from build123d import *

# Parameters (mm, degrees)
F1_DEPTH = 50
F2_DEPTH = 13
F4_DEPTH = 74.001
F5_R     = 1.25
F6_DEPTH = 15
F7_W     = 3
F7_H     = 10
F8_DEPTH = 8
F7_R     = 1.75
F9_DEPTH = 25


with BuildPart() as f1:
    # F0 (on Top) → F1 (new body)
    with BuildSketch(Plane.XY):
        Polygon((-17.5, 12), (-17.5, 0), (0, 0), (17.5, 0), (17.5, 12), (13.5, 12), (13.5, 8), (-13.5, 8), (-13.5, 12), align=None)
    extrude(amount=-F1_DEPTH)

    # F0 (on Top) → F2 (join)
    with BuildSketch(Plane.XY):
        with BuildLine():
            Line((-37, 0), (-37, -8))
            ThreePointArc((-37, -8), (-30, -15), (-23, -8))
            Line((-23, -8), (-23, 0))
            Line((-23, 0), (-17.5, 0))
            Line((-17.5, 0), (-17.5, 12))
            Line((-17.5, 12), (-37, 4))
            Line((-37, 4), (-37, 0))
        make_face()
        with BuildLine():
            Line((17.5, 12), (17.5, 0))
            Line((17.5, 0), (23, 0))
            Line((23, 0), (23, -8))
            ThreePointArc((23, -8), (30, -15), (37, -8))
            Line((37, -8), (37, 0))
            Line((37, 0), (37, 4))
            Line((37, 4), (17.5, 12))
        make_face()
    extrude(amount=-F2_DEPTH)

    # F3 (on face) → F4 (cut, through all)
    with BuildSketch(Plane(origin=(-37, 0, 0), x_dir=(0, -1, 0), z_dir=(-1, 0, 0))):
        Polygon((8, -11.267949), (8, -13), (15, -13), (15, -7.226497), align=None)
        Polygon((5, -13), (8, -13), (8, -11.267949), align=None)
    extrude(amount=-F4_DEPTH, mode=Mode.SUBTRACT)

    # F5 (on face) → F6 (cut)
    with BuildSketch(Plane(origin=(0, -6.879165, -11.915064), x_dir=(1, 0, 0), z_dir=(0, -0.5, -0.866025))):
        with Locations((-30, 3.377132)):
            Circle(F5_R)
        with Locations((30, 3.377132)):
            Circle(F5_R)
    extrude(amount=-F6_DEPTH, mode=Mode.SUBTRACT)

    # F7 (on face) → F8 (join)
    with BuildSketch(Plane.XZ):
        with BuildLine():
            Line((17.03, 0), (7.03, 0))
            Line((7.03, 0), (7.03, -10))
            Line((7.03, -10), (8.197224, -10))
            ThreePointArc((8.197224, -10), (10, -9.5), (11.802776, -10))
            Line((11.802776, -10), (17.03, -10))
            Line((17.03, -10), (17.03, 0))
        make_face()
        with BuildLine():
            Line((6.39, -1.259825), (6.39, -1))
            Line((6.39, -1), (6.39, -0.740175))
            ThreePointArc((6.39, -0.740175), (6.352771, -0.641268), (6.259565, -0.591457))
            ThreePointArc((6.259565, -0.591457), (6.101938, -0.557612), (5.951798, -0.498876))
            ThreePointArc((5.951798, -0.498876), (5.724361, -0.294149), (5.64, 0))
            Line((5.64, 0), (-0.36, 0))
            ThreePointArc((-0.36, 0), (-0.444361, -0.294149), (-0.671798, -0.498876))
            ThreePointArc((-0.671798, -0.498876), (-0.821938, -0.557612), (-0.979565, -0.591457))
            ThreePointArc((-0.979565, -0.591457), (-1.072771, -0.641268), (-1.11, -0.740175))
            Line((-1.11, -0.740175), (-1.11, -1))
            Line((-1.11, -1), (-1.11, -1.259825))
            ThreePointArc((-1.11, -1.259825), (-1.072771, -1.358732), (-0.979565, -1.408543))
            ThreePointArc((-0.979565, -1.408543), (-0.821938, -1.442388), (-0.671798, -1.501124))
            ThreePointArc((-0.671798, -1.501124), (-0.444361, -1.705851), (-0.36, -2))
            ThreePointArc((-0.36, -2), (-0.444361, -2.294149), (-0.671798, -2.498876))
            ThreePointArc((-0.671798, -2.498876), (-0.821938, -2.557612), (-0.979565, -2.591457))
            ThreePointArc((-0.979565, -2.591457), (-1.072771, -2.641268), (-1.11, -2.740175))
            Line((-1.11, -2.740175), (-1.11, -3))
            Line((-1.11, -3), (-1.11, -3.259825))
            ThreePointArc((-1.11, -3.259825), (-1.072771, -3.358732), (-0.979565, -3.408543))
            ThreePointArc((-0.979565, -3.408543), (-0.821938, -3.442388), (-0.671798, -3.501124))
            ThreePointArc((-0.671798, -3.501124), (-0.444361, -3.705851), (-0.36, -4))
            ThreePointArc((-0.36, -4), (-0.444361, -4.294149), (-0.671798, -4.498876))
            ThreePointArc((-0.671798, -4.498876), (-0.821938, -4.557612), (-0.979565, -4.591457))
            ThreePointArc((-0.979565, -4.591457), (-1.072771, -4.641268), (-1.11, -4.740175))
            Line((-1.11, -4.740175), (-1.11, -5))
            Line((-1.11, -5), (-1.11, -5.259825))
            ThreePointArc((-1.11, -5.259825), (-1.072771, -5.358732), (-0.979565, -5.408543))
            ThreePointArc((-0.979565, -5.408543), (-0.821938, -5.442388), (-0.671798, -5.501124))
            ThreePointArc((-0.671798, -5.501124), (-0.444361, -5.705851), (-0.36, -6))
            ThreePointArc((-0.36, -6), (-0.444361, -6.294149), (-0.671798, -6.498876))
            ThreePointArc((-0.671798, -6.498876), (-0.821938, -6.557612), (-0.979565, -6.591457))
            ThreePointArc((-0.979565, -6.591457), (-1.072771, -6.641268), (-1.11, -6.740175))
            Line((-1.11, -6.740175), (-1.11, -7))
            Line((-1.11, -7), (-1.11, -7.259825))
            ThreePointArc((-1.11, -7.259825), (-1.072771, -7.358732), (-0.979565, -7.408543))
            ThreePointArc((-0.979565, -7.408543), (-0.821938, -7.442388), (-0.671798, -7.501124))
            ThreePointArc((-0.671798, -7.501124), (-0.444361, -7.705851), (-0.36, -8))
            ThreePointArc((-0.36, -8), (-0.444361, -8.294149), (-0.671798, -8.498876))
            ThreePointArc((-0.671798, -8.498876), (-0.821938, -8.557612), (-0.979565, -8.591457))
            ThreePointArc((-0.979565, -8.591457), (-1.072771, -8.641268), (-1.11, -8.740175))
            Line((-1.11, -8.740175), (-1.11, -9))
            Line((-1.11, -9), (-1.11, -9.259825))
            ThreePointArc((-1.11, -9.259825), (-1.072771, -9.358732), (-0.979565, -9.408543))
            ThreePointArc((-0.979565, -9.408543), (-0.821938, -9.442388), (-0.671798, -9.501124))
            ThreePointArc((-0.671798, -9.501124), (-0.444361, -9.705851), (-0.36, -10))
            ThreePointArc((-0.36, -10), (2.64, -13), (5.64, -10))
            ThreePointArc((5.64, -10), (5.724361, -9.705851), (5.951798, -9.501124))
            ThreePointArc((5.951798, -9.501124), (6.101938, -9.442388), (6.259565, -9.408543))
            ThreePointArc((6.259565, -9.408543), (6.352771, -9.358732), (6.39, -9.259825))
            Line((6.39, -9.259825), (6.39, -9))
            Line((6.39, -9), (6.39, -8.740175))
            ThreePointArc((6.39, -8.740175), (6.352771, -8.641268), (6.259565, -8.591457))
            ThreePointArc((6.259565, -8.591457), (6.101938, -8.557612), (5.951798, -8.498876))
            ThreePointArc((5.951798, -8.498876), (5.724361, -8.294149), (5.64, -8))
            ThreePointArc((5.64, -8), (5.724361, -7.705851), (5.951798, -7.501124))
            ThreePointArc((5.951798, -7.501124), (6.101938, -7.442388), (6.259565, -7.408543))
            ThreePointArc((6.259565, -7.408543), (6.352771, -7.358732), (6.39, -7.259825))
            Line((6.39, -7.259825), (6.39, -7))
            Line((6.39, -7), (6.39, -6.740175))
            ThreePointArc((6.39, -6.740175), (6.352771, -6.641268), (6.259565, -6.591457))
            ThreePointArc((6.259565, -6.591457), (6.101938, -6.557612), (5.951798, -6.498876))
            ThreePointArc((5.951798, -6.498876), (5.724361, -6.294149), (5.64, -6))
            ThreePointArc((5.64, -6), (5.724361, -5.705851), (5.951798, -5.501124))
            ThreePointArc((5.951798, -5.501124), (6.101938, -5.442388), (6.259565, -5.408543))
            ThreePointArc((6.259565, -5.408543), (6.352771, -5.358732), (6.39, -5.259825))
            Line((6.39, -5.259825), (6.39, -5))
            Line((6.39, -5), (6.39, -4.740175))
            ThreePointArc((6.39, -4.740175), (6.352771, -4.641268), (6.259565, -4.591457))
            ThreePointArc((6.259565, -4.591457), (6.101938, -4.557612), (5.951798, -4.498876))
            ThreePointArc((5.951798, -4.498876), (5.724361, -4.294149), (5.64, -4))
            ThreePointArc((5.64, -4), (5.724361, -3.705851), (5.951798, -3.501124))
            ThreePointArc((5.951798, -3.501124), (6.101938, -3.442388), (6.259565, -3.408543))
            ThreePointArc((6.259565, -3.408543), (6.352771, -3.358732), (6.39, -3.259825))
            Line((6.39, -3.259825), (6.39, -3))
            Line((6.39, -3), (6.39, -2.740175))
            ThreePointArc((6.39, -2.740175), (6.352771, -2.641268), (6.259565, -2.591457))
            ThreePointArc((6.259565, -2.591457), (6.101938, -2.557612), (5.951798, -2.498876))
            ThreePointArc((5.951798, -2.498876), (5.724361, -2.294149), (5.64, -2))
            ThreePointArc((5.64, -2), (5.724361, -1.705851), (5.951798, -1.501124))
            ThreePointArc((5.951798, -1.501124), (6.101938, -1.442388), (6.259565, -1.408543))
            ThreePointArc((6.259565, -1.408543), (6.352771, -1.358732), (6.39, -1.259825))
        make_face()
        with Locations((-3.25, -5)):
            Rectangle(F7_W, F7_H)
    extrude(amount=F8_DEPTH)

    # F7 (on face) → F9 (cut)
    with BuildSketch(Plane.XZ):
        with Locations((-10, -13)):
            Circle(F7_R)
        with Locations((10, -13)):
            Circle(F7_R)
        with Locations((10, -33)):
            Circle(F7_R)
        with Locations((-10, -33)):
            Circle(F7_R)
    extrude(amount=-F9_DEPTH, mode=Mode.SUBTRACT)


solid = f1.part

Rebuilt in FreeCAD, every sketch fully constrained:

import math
import FreeCAD as App
import Part
import Sketcher

V = App.Vector
Q = App.Units.Quantity

doc = App.newDocument("Part")
body = doc.addObject("PartDesign::Body", "Body")

# Sketch on XY plane
sketch1 = doc.addObject("Sketcher::SketchObject", "Sketch")
body.addObject(sketch1)
sketch1.AttachmentSupport = (doc.XY_Plane, [""])
sketch1.MapMode = "FlatFace"
sketch1.addGeometry([
    Part.LineSegment(V(-17.5, 12, 0), V(-17.5, 0, 0)),  # 0
    Part.LineSegment(V(-17.5, 0, 0), V(17.5, 0, 0)),  # 1
    Part.LineSegment(V(17.5, 0, 0), V(17.5, 12, 0)),  # 2
    Part.LineSegment(V(17.5, 12, 0), V(13.5, 12, 0)),  # 3
    Part.LineSegment(V(13.5, 12, 0), V(13.5, 8, 0)),  # 4
    Part.LineSegment(V(13.5, 8, 0), V(-13.5, 8, 0)),  # 5
    Part.LineSegment(V(-13.5, 8, 0), V(-13.5, 12, 0)),  # 6
    Part.LineSegment(V(-13.5, 12, 0), V(-17.5, 12, 0)),  # 7
], False)
sketch1.addConstraint([
    Sketcher.Constraint("Coincident", 0, 2, 1, 1),
    Sketcher.Constraint("Coincident", 1, 2, 2, 1),
    Sketcher.Constraint("Coincident", 2, 2, 3, 1),
    Sketcher.Constraint("Coincident", 3, 2, 4, 1),
    Sketcher.Constraint("Coincident", 4, 2, 5, 1),
    Sketcher.Constraint("Coincident", 5, 2, 6, 1),
    Sketcher.Constraint("Coincident", 6, 2, 7, 1),
    Sketcher.Constraint("Coincident", 7, 2, 0, 1),
    Sketcher.Constraint("Vertical", 0),
    Sketcher.Constraint("Horizontal", 1),
    Sketcher.Constraint("Vertical", 2),
    Sketcher.Constraint("Horizontal", 3),
    Sketcher.Constraint("Vertical", 4),
    Sketcher.Constraint("Horizontal", 5),
    Sketcher.Constraint("Vertical", 6),
    Sketcher.Constraint("Horizontal", 7),
    Sketcher.Constraint("Symmetric", 0, 2, 1, 2, -1, 1),
    Sketcher.Constraint("Symmetric", 3, 2, 6, 2, -2),
    Sketcher.Constraint("Equal", 7, 4),
    Sketcher.Constraint("DistanceX", 1, 1, 1, 2, Q("35 mm")),
    Sketcher.Constraint("DistanceX", 3, 2, 3, 1, Q("4 mm")),
    Sketcher.Constraint("DistanceY", 0, 2, 0, 1, Q("12 mm")),
])
pad1 = doc.addObject("PartDesign::Pad", "Pad")
body.addObject(pad1)
pad1.Profile = sketch1
pad1.Length = 50
pad1.Reversed = True

# Sketch on XY plane
sketch2 = doc.addObject("Sketcher::SketchObject", "Sketch001")
body.addObject(sketch2)
sketch2.AttachmentSupport = (doc.XY_Plane, [""])
sketch2.MapMode = "FlatFace"
sketch2.addGeometry([
    Part.ArcOfCircle(Part.Circle(V(-30, -8, 0), V(0, 0, 1), 7), math.radians(180), math.radians(360)),  # 0
    Part.LineSegment(V(-23, -8, 0), V(-23, 0, 0)),  # 1
    Part.LineSegment(V(-23, 0, 0), V(-18, 0, 0)),  # 2
    Part.LineSegment(V(-18, 0, 0), V(-18, 12, 0)),  # 3
    Part.LineSegment(V(-18, 12, 0), V(-37, 4, 0)),  # 4
    Part.LineSegment(V(-37, 4, 0), V(-37, -8, 0)),  # 5
    Part.LineSegment(V(18, 12, 0), V(18, 0, 0)),  # 6
    Part.LineSegment(V(18, 0, 0), V(23, 0, 0)),  # 7
    Part.LineSegment(V(23, 0, 0), V(23, -8, 0)),  # 8
    Part.ArcOfCircle(Part.Circle(V(30, -8, 0), V(0, 0, 1), 7), math.radians(180), math.radians(360)),  # 9
    Part.LineSegment(V(37, -8, 0), V(37, 4, 0)),  # 10
    Part.LineSegment(V(37, 4, 0), V(18, 12, 0)),  # 11
], False)
sketch2.addConstraint([
    Sketcher.Constraint("Tangent", 0, 2, 1, 1),
    Sketcher.Constraint("Coincident", 1, 2, 2, 1),
    Sketcher.Constraint("Coincident", 2, 2, 3, 1),
    Sketcher.Constraint("Coincident", 3, 2, 4, 1),
    Sketcher.Constraint("Coincident", 4, 2, 5, 1),
    Sketcher.Constraint("Tangent", 5, 2, 0, 1),
    Sketcher.Constraint("Coincident", 6, 2, 7, 1),
    Sketcher.Constraint("Coincident", 7, 2, 8, 1),
    Sketcher.Constraint("Tangent", 8, 2, 9, 1),
    Sketcher.Constraint("Tangent", 9, 2, 10, 1),
    Sketcher.Constraint("Coincident", 10, 2, 11, 1),
    Sketcher.Constraint("Coincident", 11, 2, 6, 1),
    Sketcher.Constraint("Vertical", 1),
    Sketcher.Constraint("Horizontal", 2),
    Sketcher.Constraint("Vertical", 3),
    Sketcher.Constraint("Vertical", 5),
    Sketcher.Constraint("Vertical", 6),
    Sketcher.Constraint("Horizontal", 7),
    Sketcher.Constraint("Vertical", 8),
    Sketcher.Constraint("Vertical", 10),
    Sketcher.Constraint("Equal", 0, 9),
    Sketcher.Constraint("Symmetric", 2, 2, 6, 2, -1, 1),
    Sketcher.Constraint("Symmetric", 0, 3, 9, 3, -2),
    Sketcher.Constraint("PointOnObject", 1, 2, -1),
    Sketcher.Constraint("Horizontal", 4, 2, 10, 2),
    Sketcher.Constraint("Horizontal", 3, 2, 11, 2),
    Sketcher.Constraint("Equal", 3, 5),
    Sketcher.Constraint("Radius", 0, Q("7 mm")),
    Sketcher.Constraint("DistanceY", 1, 1, 1, 2, Q("8 mm")),
    Sketcher.Constraint("DistanceY", 3, 1, 3, 2, Q("12 mm")),
    Sketcher.Constraint("DistanceX", 2, 1, 2, 2, Q("5.5 mm")),
    Sketcher.Constraint("DistanceX", 0, 3, -1, 1, Q("30 mm")),
])
pad2 = doc.addObject("PartDesign::Pad", "Pad001")
body.addObject(pad2)
pad2.Profile = sketch2
pad2.Length = 13
pad2.Reversed = True

# Sketch on YZ plane
sketch3 = doc.addObject("Sketcher::SketchObject", "Sketch002")
body.addObject(sketch3)
sketch3.AttachmentSupport = (doc.YZ_Plane, [""])
sketch3.MapMode = "FlatFace"
sketch3.AttachmentOffset = App.Placement(V(0, 0, -37), App.Rotation())
sketch3.addGeometry([
    Part.LineSegment(V(-15, -13, 0), V(-15, -7.2, 0)),
    Part.LineSegment(V(-15, -7.2, 0), V(-8, -11.3, 0)),
    Part.LineSegment(V(-8, -11.3, 0), V(-5, -13, 0)),
    Part.LineSegment(V(-5, -13, 0), V(-15, -13, 0)),
], False)
sketch3.addConstraint([
    Sketcher.Constraint("Coincident", 0, 2, 1, 1),
    Sketcher.Constraint("Coincident", 1, 2, 2, 1),
    Sketcher.Constraint("Coincident", 2, 2, 3, 1),
    Sketcher.Constraint("Coincident", 3, 2, 0, 1),
    Sketcher.Constraint("Vertical", 0),
    Sketcher.Constraint("Horizontal", 3),
    Sketcher.Constraint("Parallel", 1, 2),
    Sketcher.Constraint("DistanceX", 3, 2, 3, 1, Q("10 mm")),
    Sketcher.Constraint("Angle", 1, Q("-30.000001 deg")),
    Sketcher.Constraint("DistanceX", 0, 2, -1, 1, Q("15 mm")),
    Sketcher.Constraint("DistanceX", 1, 2, -1, 1, Q("8 mm")),
    Sketcher.Constraint("DistanceY", 2, 2, -1, 1, Q("13 mm")),
])
pocket1 = doc.addObject("PartDesign::Pocket", "Pocket")
body.addObject(pocket1)
pocket1.Profile = sketch3
pocket1.Type = "ThroughAll"
pocket1.Reversed = True

# Sketch on an angled plane
sketch4 = doc.addObject("Sketcher::SketchObject", "Sketch003")
body.addObject(sketch4)
sketch4.Placement = App.Placement(V(0, -6.879165, -11.915064), App.Rotation(V(1, 0, 0), V(0, -0.866025303, 0.500000175), V(0, -0.500000175, -0.866025303), "ZXY"))
sketch4.addGeometry([
    Part.Circle(V(-30, 3.4, 0), V(0, 0, 1), 1.2),
    Part.Circle(V(30, 3.4, 0), V(0, 0, 1), 1.2),
], False)
sketch4.addConstraint([
    Sketcher.Constraint("Equal", 0, 1),
    Sketcher.Constraint("Symmetric", 0, 3, 1, 3, -2),
    Sketcher.Constraint("Diameter", 0, Q("2.5 mm")),
    Sketcher.Constraint("DistanceX", 0, 3, -1, 1, Q("30 mm")),
    Sketcher.Constraint("DistanceY", -1, 1, 0, 3, Q("3.377132 mm")),
])
pocket2 = doc.addObject("PartDesign::Pocket", "Pocket001")
body.addObject(pocket2)
pocket2.Profile = sketch4
pocket2.Length = 15

# Sketch on XZ plane
sketch5 = doc.addObject("Sketcher::SketchObject", "Sketch004")
body.addObject(sketch5)
sketch5.AttachmentSupport = (doc.XZ_Plane, [""])
sketch5.MapMode = "FlatFace"
sketch5.addGeometry([
    Part.LineSegment(V(17.03, 0, 0), V(7.03, 0, 0)),  # 0
    Part.LineSegment(V(7.03, 0, 0), V(7.03, -10, 0)),  # 1
    Part.LineSegment(V(7.03, -10, 0), V(8.2, -10, 0)),  # 2
    Part.ArcOfCircle(Part.Circle(V(10, -13, 0), V(0, 0, 1), 3.5), math.radians(59), math.radians(121)),  # 3
    Part.LineSegment(V(11.8, -10, 0), V(17.03, -10, 0)),  # 4
    Part.LineSegment(V(17.03, -10, 0), V(17.03, 0, 0)),  # 5
    Part.LineSegment(V(6.39, -1.26, 0), V(6.39, -0.74, 0)),  # 6
    Part.ArcOfCircle(Part.Circle(V(6.24, -0.74, 0), V(0, 0, 1), 0.15), math.radians(0), math.radians(83)),  # 7
    Part.ArcOfCircle(Part.Circle(V(6.39, 0.4, 0), V(0, 0, 1), 1), math.radians(-115.99), math.radians(-97.49)),  # 8
    Part.ArcOfCircle(Part.Circle(V(6.19, 0, 0), V(0, 0, 1), 0.55), math.radians(-180), math.radians(-116)),  # 9
    Part.LineSegment(V(5.64, 0, 0), V(-0.36, 0, 0)),  # 10
    Part.ArcOfCircle(Part.Circle(V(-0.91, 0, 0), V(0, 0, 1), 0.55), math.radians(-64), math.radians(0)),  # 11
    Part.ArcOfCircle(Part.Circle(V(-1.11, 0.4, 0), V(0, 0, 1), 1), math.radians(-82.51), math.radians(-64.01)),  # 12
    Part.ArcOfCircle(Part.Circle(V(-0.96, -0.74, 0), V(0, 0, 1), 0.15), math.radians(97), math.radians(180)),  # 13
    Part.LineSegment(V(-1.11, -0.74, 0), V(-1.11, -1.26, 0)),  # 14
    Part.ArcOfCircle(Part.Circle(V(-0.96, -1.26, 0), V(0, 0, 1), 0.15), math.radians(-180), math.radians(-97)),  # 15
    Part.ArcOfCircle(Part.Circle(V(-1.11, -2.4, 0), V(0, 0, 1), 1), math.radians(64.01), math.radians(82.51)),  # 16
    Part.ArcOfCircle(Part.Circle(V(-0.91, -2, 0), V(0, 0, 1), 0.55), math.radians(0), math.radians(64)),  # 17
    Part.ArcOfCircle(Part.Circle(V(-0.91, -2, 0), V(0, 0, 1), 0.55), math.radians(-64), math.radians(0)),  # 18
    Part.ArcOfCircle(Part.Circle(V(-1.11, -1.6, 0), V(0, 0, 1), 1), math.radians(-82.51), math.radians(-64.01)),  # 19
    Part.ArcOfCircle(Part.Circle(V(-0.96, -2.74, 0), V(0, 0, 1), 0.15), math.radians(97), math.radians(180)),  # 20
    Part.LineSegment(V(-1.11, -2.74, 0), V(-1.11, -3.26, 0)),  # 21
    Part.ArcOfCircle(Part.Circle(V(-0.96, -3.26, 0), V(0, 0, 1), 0.15), math.radians(-180), math.radians(-97)),  # 22
    Part.ArcOfCircle(Part.Circle(V(-1.11, -4.4, 0), V(0, 0, 1), 1), math.radians(64.01), math.radians(82.51)),  # 23
    Part.ArcOfCircle(Part.Circle(V(-0.91, -4, 0), V(0, 0, 1), 0.55), math.radians(0), math.radians(64)),  # 24
    Part.ArcOfCircle(Part.Circle(V(-0.91, -4, 0), V(0, 0, 1), 0.55), math.radians(-64), math.radians(0)),  # 25
    Part.ArcOfCircle(Part.Circle(V(-1.11, -3.6, 0), V(0, 0, 1), 1), math.radians(-82.51), math.radians(-64.01)),  # 26
    Part.ArcOfCircle(Part.Circle(V(-0.96, -4.74, 0), V(0, 0, 1), 0.15), math.radians(97), math.radians(180)),  # 27
    Part.LineSegment(V(-1.11, -4.74, 0), V(-1.11, -5.26, 0)),  # 28
    Part.ArcOfCircle(Part.Circle(V(-0.96, -5.26, 0), V(0, 0, 1), 0.15), math.radians(-180), math.radians(-97)),  # 29
    Part.ArcOfCircle(Part.Circle(V(-1.11, -6.4, 0), V(0, 0, 1), 1), math.radians(64.01), math.radians(82.51)),  # 30
    Part.ArcOfCircle(Part.Circle(V(-0.91, -6, 0), V(0, 0, 1), 0.55), math.radians(0), math.radians(64)),  # 31
    Part.ArcOfCircle(Part.Circle(V(-0.91, -6, 0), V(0, 0, 1), 0.55), math.radians(-64), math.radians(0)),  # 32
    Part.ArcOfCircle(Part.Circle(V(-1.11, -5.6, 0), V(0, 0, 1), 1), math.radians(-82.51), math.radians(-64.01)),  # 33
    Part.ArcOfCircle(Part.Circle(V(-0.96, -6.74, 0), V(0, 0, 1), 0.15), math.radians(97), math.radians(180)),  # 34
    Part.LineSegment(V(-1.11, -6.74, 0), V(-1.11, -7.26, 0)),  # 35
    Part.ArcOfCircle(Part.Circle(V(-0.96, -7.26, 0), V(0, 0, 1), 0.15), math.radians(-180), math.radians(-97)),  # 36
    Part.ArcOfCircle(Part.Circle(V(-1.11, -8.4, 0), V(0, 0, 1), 1), math.radians(64.01), math.radians(82.51)),  # 37
    Part.ArcOfCircle(Part.Circle(V(-0.91, -8, 0), V(0, 0, 1), 0.55), math.radians(0), math.radians(64)),  # 38
    Part.ArcOfCircle(Part.Circle(V(-0.91, -8, 0), V(0, 0, 1), 0.55), math.radians(-64), math.radians(0)),  # 39
    Part.ArcOfCircle(Part.Circle(V(-1.11, -7.6, 0), V(0, 0, 1), 1), math.radians(-82.51), math.radians(-64.01)),  # 40
    Part.ArcOfCircle(Part.Circle(V(-0.96, -8.74, 0), V(0, 0, 1), 0.15), math.radians(97), math.radians(180)),  # 41
    Part.LineSegment(V(-1.11, -8.74, 0), V(-1.11, -9.26, 0)),  # 42
    Part.ArcOfCircle(Part.Circle(V(-0.96, -9.26, 0), V(0, 0, 1), 0.15), math.radians(-180), math.radians(-97)),  # 43
    Part.ArcOfCircle(Part.Circle(V(-1.11, -10.4, 0), V(0, 0, 1), 1), math.radians(64.01), math.radians(82.51)),  # 44
    Part.ArcOfCircle(Part.Circle(V(-0.91, -10, 0), V(0, 0, 1), 0.55), math.radians(0), math.radians(64)),  # 45
    Part.ArcOfCircle(Part.Circle(V(2.64, -10, 0), V(0, 0, 1), 3), math.radians(180), math.radians(360)),  # 46
    Part.ArcOfCircle(Part.Circle(V(6.19, -10, 0), V(0, 0, 1), 0.55), math.radians(116), math.radians(180)),  # 47
    Part.ArcOfCircle(Part.Circle(V(6.39, -10.4, 0), V(0, 0, 1), 1), math.radians(97.49), math.radians(115.99)),  # 48
    Part.ArcOfCircle(Part.Circle(V(6.24, -9.26, 0), V(0, 0, 1), 0.15), math.radians(-83), math.radians(0)),  # 49
    Part.LineSegment(V(6.39, -9.26, 0), V(6.39, -8.74, 0)),  # 50
    Part.ArcOfCircle(Part.Circle(V(6.24, -8.74, 0), V(0, 0, 1), 0.15), math.radians(0), math.radians(83)),  # 51
    Part.ArcOfCircle(Part.Circle(V(6.39, -7.6, 0), V(0, 0, 1), 1), math.radians(-115.99), math.radians(-97.49)),  # 52
    Part.ArcOfCircle(Part.Circle(V(6.19, -8, 0), V(0, 0, 1), 0.55), math.radians(-180), math.radians(-116)),  # 53
    Part.ArcOfCircle(Part.Circle(V(6.19, -8, 0), V(0, 0, 1), 0.55), math.radians(116), math.radians(180)),  # 54
    Part.ArcOfCircle(Part.Circle(V(6.39, -8.4, 0), V(0, 0, 1), 1), math.radians(97.49), math.radians(115.99)),  # 55
    Part.ArcOfCircle(Part.Circle(V(6.24, -7.26, 0), V(0, 0, 1), 0.15), math.radians(-83), math.radians(0)),  # 56
    Part.LineSegment(V(6.39, -7.26, 0), V(6.39, -6.74, 0)),  # 57
    Part.ArcOfCircle(Part.Circle(V(6.24, -6.74, 0), V(0, 0, 1), 0.15), math.radians(0), math.radians(83)),  # 58
    Part.ArcOfCircle(Part.Circle(V(6.39, -5.6, 0), V(0, 0, 1), 1), math.radians(-115.99), math.radians(-97.49)),  # 59
    Part.ArcOfCircle(Part.Circle(V(6.19, -6, 0), V(0, 0, 1), 0.55), math.radians(-180), math.radians(-116)),  # 60
    Part.ArcOfCircle(Part.Circle(V(6.19, -6, 0), V(0, 0, 1), 0.55), math.radians(116), math.radians(180)),  # 61
    Part.ArcOfCircle(Part.Circle(V(6.39, -6.4, 0), V(0, 0, 1), 1), math.radians(97.49), math.radians(115.99)),  # 62
    Part.ArcOfCircle(Part.Circle(V(6.24, -5.26, 0), V(0, 0, 1), 0.15), math.radians(-83), math.radians(0)),  # 63
    Part.LineSegment(V(6.39, -5.26, 0), V(6.39, -4.74, 0)),  # 64
    Part.ArcOfCircle(Part.Circle(V(6.24, -4.74, 0), V(0, 0, 1), 0.15), math.radians(0), math.radians(83)),  # 65
    Part.ArcOfCircle(Part.Circle(V(6.39, -3.6, 0), V(0, 0, 1), 1), math.radians(-115.99), math.radians(-97.49)),  # 66
    Part.ArcOfCircle(Part.Circle(V(6.19, -4, 0), V(0, 0, 1), 0.55), math.radians(-180), math.radians(-116)),  # 67
    Part.ArcOfCircle(Part.Circle(V(6.19, -4, 0), V(0, 0, 1), 0.55), math.radians(116), math.radians(180)),  # 68
    Part.ArcOfCircle(Part.Circle(V(6.39, -4.4, 0), V(0, 0, 1), 1), math.radians(97.49), math.radians(115.99)),  # 69
    Part.ArcOfCircle(Part.Circle(V(6.24, -3.26, 0), V(0, 0, 1), 0.15), math.radians(-83), math.radians(0)),  # 70
    Part.LineSegment(V(6.39, -3.26, 0), V(6.39, -2.74, 0)),  # 71
    Part.ArcOfCircle(Part.Circle(V(6.24, -2.74, 0), V(0, 0, 1), 0.15), math.radians(0), math.radians(83)),  # 72
    Part.ArcOfCircle(Part.Circle(V(6.39, -1.6, 0), V(0, 0, 1), 1), math.radians(-115.99), math.radians(-97.49)),  # 73
    Part.ArcOfCircle(Part.Circle(V(6.19, -2, 0), V(0, 0, 1), 0.55), math.radians(-180), math.radians(-116)),  # 74
    Part.ArcOfCircle(Part.Circle(V(6.19, -2, 0), V(0, 0, 1), 0.55), math.radians(116), math.radians(180)),  # 75
    Part.ArcOfCircle(Part.Circle(V(6.39, -2.4, 0), V(0, 0, 1), 1), math.radians(97.49), math.radians(115.99)),  # 76
    Part.ArcOfCircle(Part.Circle(V(6.24, -1.26, 0), V(0, 0, 1), 0.15), math.radians(-83), math.radians(0)),  # 77
    Part.LineSegment(V(-4.75, 0, 0), V(-4.75, -10, 0)),  # 78
    Part.LineSegment(V(-4.75, -10, 0), V(-1.75, -10, 0)),  # 79
    Part.LineSegment(V(-1.75, -10, 0), V(-1.75, 0, 0)),  # 80
    Part.LineSegment(V(-1.75, 0, 0), V(-4.75, 0, 0)),  # 81
], False)
sketch5.addConstraint([
    Sketcher.Constraint("Coincident", 0, 2, 1, 1),
    Sketcher.Constraint("Coincident", 1, 2, 2, 1),
    Sketcher.Constraint("Coincident", 2, 2, 3, 2),
    Sketcher.Constraint("Coincident", 3, 1, 4, 1),
    Sketcher.Constraint("Coincident", 4, 2, 5, 1),
    Sketcher.Constraint("Coincident", 5, 2, 0, 1),
    Sketcher.Constraint("Coincident", 6, 2, 7, 1),
    Sketcher.Constraint("Tangent", 7, 2, 8, 2),
    Sketcher.Constraint("Coincident", 8, 1, 9, 2),
    Sketcher.Constraint("Coincident", 9, 1, 10, 1),
    Sketcher.Constraint("Coincident", 10, 2, 11, 2),
    Sketcher.Constraint("Coincident", 11, 1, 12, 2),
    Sketcher.Constraint("Tangent", 12, 1, 13, 1),
    Sketcher.Constraint("Coincident", 13, 2, 14, 1),
    Sketcher.Constraint("Coincident", 14, 2, 15, 1),
    Sketcher.Constraint("Tangent", 15, 2, 16, 2),
    Sketcher.Constraint("Coincident", 16, 1, 17, 2),
    Sketcher.Constraint("Tangent", 17, 1, 18, 2),
    Sketcher.Constraint("Coincident", 18, 1, 19, 2),
    Sketcher.Constraint("Tangent", 19, 1, 20, 1),
    Sketcher.Constraint("Coincident", 20, 2, 21, 1),
    Sketcher.Constraint("Coincident", 21, 2, 22, 1),
    Sketcher.Constraint("Tangent", 22, 2, 23, 2),
    Sketcher.Constraint("Coincident", 23, 1, 24, 2),
    Sketcher.Constraint("Tangent", 24, 1, 25, 2),
    Sketcher.Constraint("Coincident", 25, 1, 26, 2),
    Sketcher.Constraint("Tangent", 26, 1, 27, 1),
    Sketcher.Constraint("Coincident", 27, 2, 28, 1),
    Sketcher.Constraint("Coincident", 28, 2, 29, 1),
    Sketcher.Constraint("Tangent", 29, 2, 30, 2),
    Sketcher.Constraint("Coincident", 30, 1, 31, 2),
    Sketcher.Constraint("Tangent", 31, 1, 32, 2),
    Sketcher.Constraint("Coincident", 32, 1, 33, 2),
    Sketcher.Constraint("Tangent", 33, 1, 34, 1),
    Sketcher.Constraint("Coincident", 34, 2, 35, 1),
    Sketcher.Constraint("Coincident", 35, 2, 36, 1),
    Sketcher.Constraint("Tangent", 36, 2, 37, 2),
    Sketcher.Constraint("Coincident", 37, 1, 38, 2),
    Sketcher.Constraint("Tangent", 38, 1, 39, 2),
    Sketcher.Constraint("Coincident", 39, 1, 40, 2),
    Sketcher.Constraint("Tangent", 40, 1, 41, 1),
    Sketcher.Constraint("Coincident", 41, 2, 42, 1),
    Sketcher.Constraint("Coincident", 42, 2, 43, 1),
    Sketcher.Constraint("Tangent", 43, 2, 44, 2),
    Sketcher.Constraint("Coincident", 44, 1, 45, 2),
    Sketcher.Constraint("Tangent", 45, 1, 46, 1),
    Sketcher.Constraint("Tangent", 46, 2, 47, 2),
    Sketcher.Constraint("Coincident", 47, 1, 48, 2),
    Sketcher.Constraint("Tangent", 48, 1, 49, 1),
    Sketcher.Constraint("Coincident", 49, 2, 50, 1),
    Sketcher.Constraint("Coincident", 50, 2, 51, 1),
    Sketcher.Constraint("Tangent", 51, 2, 52, 2),
    Sketcher.Constraint("Coincident", 52, 1, 53, 2),
    Sketcher.Constraint("Tangent", 53, 1, 54, 2),
    Sketcher.Constraint("Coincident", 54, 1, 55, 2),
    Sketcher.Constraint("Tangent", 55, 1, 56, 1),
    Sketcher.Constraint("Coincident", 56, 2, 57, 1),
    Sketcher.Constraint("Coincident", 57, 2, 58, 1),
    Sketcher.Constraint("Tangent", 58, 2, 59, 2),
    Sketcher.Constraint("Coincident", 59, 1, 60, 2),
    Sketcher.Constraint("Tangent", 60, 1, 61, 2),
    Sketcher.Constraint("Coincident", 61, 1, 62, 2),
    Sketcher.Constraint("Tangent", 62, 1, 63, 1),
    Sketcher.Constraint("Coincident", 63, 2, 64, 1),
    Sketcher.Constraint("Coincident", 64, 2, 65, 1),
    Sketcher.Constraint("Tangent", 65, 2, 66, 2),
    Sketcher.Constraint("Coincident", 66, 1, 67, 2),
    Sketcher.Constraint("Tangent", 67, 1, 68, 2),
    Sketcher.Constraint("Coincident", 68, 1, 69, 2),
    Sketcher.Constraint("Tangent", 69, 1, 70, 1),
    Sketcher.Constraint("Coincident", 70, 2, 71, 1),
    Sketcher.Constraint("Coincident", 71, 2, 72, 1),
    Sketcher.Constraint("Tangent", 72, 2, 73, 2),
    Sketcher.Constraint("Coincident", 73, 1, 74, 2),
    Sketcher.Constraint("Tangent", 74, 1, 75, 2),
    Sketcher.Constraint("Coincident", 75, 1, 76, 2),
    Sketcher.Constraint("Tangent", 76, 1, 77, 1),
    Sketcher.Constraint("Coincident", 77, 2, 6, 1),
    Sketcher.Constraint("Coincident", 78, 2, 79, 1),
    Sketcher.Constraint("Coincident", 79, 2, 80, 1),
    Sketcher.Constraint("Coincident", 80, 2, 81, 1),
    Sketcher.Constraint("Coincident", 81, 2, 78, 1),
    Sketcher.Constraint("Horizontal", 0),
    Sketcher.Constraint("Vertical", 1),
    Sketcher.Constraint("Horizontal", 2),
    Sketcher.Constraint("Horizontal", 4),
    Sketcher.Constraint("Vertical", 5),
    Sketcher.Constraint("Vertical", 6),
    Sketcher.Constraint("Horizontal", 10),
    Sketcher.Constraint("Vertical", 14),
    Sketcher.Constraint("Vertical", 21),
    Sketcher.Constraint("Vertical", 28),
    Sketcher.Constraint("Vertical", 35),
    Sketcher.Constraint("Vertical", 42),
    Sketcher.Constraint("Vertical", 50),
    Sketcher.Constraint("Vertical", 57),
    Sketcher.Constraint("Vertical", 64),
    Sketcher.Constraint("Vertical", 71),
    Sketcher.Constraint("Vertical", 78),
    Sketcher.Constraint("Horizontal", 79),
    Sketcher.Constraint("Vertical", 80),
    Sketcher.Constraint("Horizontal", 81),
    Sketcher.Constraint("Equal", 9, 11),
    Sketcher.Constraint("Equal", 8, 12),
    Sketcher.Constraint("Equal", 7, 13),
    Sketcher.Constraint("Equal", 13, 15),
    Sketcher.Constraint("Equal", 12, 16),
    Sketcher.Constraint("Equal", 11, 17),
    Sketcher.Constraint("Equal", 17, 18),
    Sketcher.Constraint("Equal", 16, 19),
    Sketcher.Constraint("Equal", 15, 20),
    Sketcher.Constraint("Equal", 20, 22),
    Sketcher.Constraint("Equal", 19, 23),
    Sketcher.Constraint("Equal", 18, 24),
    Sketcher.Constraint("Equal", 24, 25),
    Sketcher.Constraint("Equal", 23, 26),
    Sketcher.Constraint("Equal", 22, 27),
    Sketcher.Constraint("Equal", 27, 29),
    Sketcher.Constraint("Equal", 26, 30),
    Sketcher.Constraint("Equal", 25, 31),
    Sketcher.Constraint("Equal", 31, 32),
    Sketcher.Constraint("Equal", 30, 33),
    Sketcher.Constraint("Equal", 29, 34),
    Sketcher.Constraint("Equal", 34, 36),
    Sketcher.Constraint("Equal", 33, 37),
    Sketcher.Constraint("Equal", 32, 38),
    Sketcher.Constraint("Equal", 38, 39),
    Sketcher.Constraint("Equal", 37, 40),
    Sketcher.Constraint("Equal", 36, 41),
    Sketcher.Constraint("Equal", 41, 43),
    Sketcher.Constraint("Equal", 40, 44),
    Sketcher.Constraint("Equal", 39, 45),
    Sketcher.Constraint("Equal", 45, 47),
    Sketcher.Constraint("Equal", 44, 48),
    Sketcher.Constraint("Equal", 43, 49),
    Sketcher.Constraint("Equal", 49, 51),
    Sketcher.Constraint("Equal", 48, 52),
    Sketcher.Constraint("Equal", 47, 53),
    Sketcher.Constraint("Equal", 53, 54),
    Sketcher.Constraint("Equal", 52, 55),
    Sketcher.Constraint("Equal", 51, 56),
    Sketcher.Constraint("Equal", 56, 58),
    Sketcher.Constraint("Equal", 55, 59),
    Sketcher.Constraint("Equal", 54, 60),
    Sketcher.Constraint("Equal", 60, 61),
    Sketcher.Constraint("Equal", 59, 62),
    Sketcher.Constraint("Equal", 58, 63),
    Sketcher.Constraint("Equal", 63, 65),
    Sketcher.Constraint("Equal", 62, 66),
    Sketcher.Constraint("Equal", 61, 67),
    Sketcher.Constraint("Equal", 67, 68),
    Sketcher.Constraint("Equal", 66, 69),
    Sketcher.Constraint("Equal", 65, 70),
    Sketcher.Constraint("Equal", 70, 72),
    Sketcher.Constraint("Equal", 69, 73),
    Sketcher.Constraint("Equal", 68, 74),
    Sketcher.Constraint("Equal", 74, 75),
    Sketcher.Constraint("Equal", 73, 76),
    Sketcher.Constraint("Equal", 72, 77),
    Sketcher.Constraint("PointOnObject", 9, 3, -1),
    Sketcher.Constraint("PointOnObject", 11, 3, -1),
    Sketcher.Constraint("PointOnObject", 0, 2, -1),
    Sketcher.Constraint("PointOnObject", 9, 1, -1),
    Sketcher.Constraint("PointOnObject", 80, 2, -1),
    Sketcher.Constraint("Horizontal", 8, 3, 12, 3),
    Sketcher.Constraint("Horizontal", 7, 3, 13, 3),
    Sketcher.Constraint("Horizontal", 45, 3, 46, 3),
    Sketcher.Constraint("Horizontal", 46, 3, 47, 3),
    Sketcher.Constraint("Horizontal", 44, 3, 48, 3),
    Sketcher.Constraint("Horizontal", 43, 3, 49, 3),
    Sketcher.Constraint("Horizontal", 41, 3, 51, 3),
    Sketcher.Constraint("Horizontal", 40, 3, 52, 3),
    Sketcher.Constraint("Horizontal", 39, 3, 53, 3),
    Sketcher.Constraint("Horizontal", 37, 3, 55, 3),
    Sketcher.Constraint("Horizontal", 36, 3, 56, 3),
    Sketcher.Constraint("Horizontal", 34, 3, 58, 3),
    Sketcher.Constraint("Horizontal", 33, 3, 59, 3),
    Sketcher.Constraint("Horizontal", 32, 3, 60, 3),
    Sketcher.Constraint("Horizontal", 30, 3, 62, 3),
    Sketcher.Constraint("Horizontal", 29, 3, 63, 3),
    Sketcher.Constraint("Horizontal", 27, 3, 65, 3),
    Sketcher.Constraint("Horizontal", 26, 3, 66, 3),
    Sketcher.Constraint("Horizontal", 25, 3, 67, 3),
    Sketcher.Constraint("Horizontal", 23, 3, 69, 3),
    Sketcher.Constraint("Horizontal", 22, 3, 70, 3),
    Sketcher.Constraint("Horizontal", 20, 3, 72, 3),
    Sketcher.Constraint("Horizontal", 19, 3, 73, 3),
    Sketcher.Constraint("Horizontal", 18, 3, 74, 3),
    Sketcher.Constraint("Horizontal", 16, 3, 76, 3),
    Sketcher.Constraint("Horizontal", 15, 3, 77, 3),
    Sketcher.Constraint("Horizontal", 47, 3, 1, 2),
    Sketcher.Constraint("Horizontal", 2, 2, 3, 1),
    Sketcher.Constraint("Horizontal", 13, 3, 6, 2),
    Sketcher.Constraint("Horizontal", 8, 1, 11, 1),
    Sketcher.Constraint("Horizontal", 6, 2, 13, 2),
    Sketcher.Constraint("Horizontal", 77, 3, 14, 2),
    Sketcher.Constraint("Horizontal", 75, 3, 17, 1),
    Sketcher.Constraint("Horizontal", 72, 3, 20, 2),
    Sketcher.Constraint("Horizontal", 70, 3, 21, 2),
    Sketcher.Constraint("Horizontal", 68, 3, 24, 1),
    Sketcher.Constraint("Horizontal", 65, 3, 27, 2),
    Sketcher.Constraint("Horizontal", 63, 3, 28, 2),
    Sketcher.Constraint("Horizontal", 61, 3, 31, 1),
    Sketcher.Constraint("Horizontal", 58, 3, 34, 2),
    Sketcher.Constraint("Horizontal", 56, 3, 35, 2),
    Sketcher.Constraint("Horizontal", 54, 3, 38, 1),
    Sketcher.Constraint("Horizontal", 51, 3, 41, 2),
    Sketcher.Constraint("Horizontal", 49, 3, 42, 2),
    Sketcher.Constraint("Horizontal", 44, 1, 47, 1),
    Sketcher.Constraint("Horizontal", 42, 2, 49, 2),
    Sketcher.Constraint("Horizontal", 41, 2, 50, 2),
    Sketcher.Constraint("Horizontal", 39, 1, 52, 1),
    Sketcher.Constraint("Horizontal", 38, 1, 53, 1),
    Sketcher.Constraint("Horizontal", 37, 1, 54, 1),
    Sketcher.Constraint("Horizontal", 35, 2, 56, 2),
    Sketcher.Constraint("Horizontal", 34, 2, 57, 2),
    Sketcher.Constraint("Horizontal", 32, 1, 59, 1),
    Sketcher.Constraint("Horizontal", 31, 1, 60, 1),
    Sketcher.Constraint("Horizontal", 30, 1, 61, 1),
    Sketcher.Constraint("Horizontal", 28, 2, 63, 2),
    Sketcher.Constraint("Horizontal", 27, 2, 64, 2),
    Sketcher.Constraint("Horizontal", 25, 1, 66, 1),
    Sketcher.Constraint("Horizontal", 24, 1, 67, 1),
    Sketcher.Constraint("Horizontal", 23, 1, 68, 1),
    Sketcher.Constraint("Horizontal", 21, 2, 70, 2),
    Sketcher.Constraint("Horizontal", 20, 2, 71, 2),
    Sketcher.Constraint("Horizontal", 18, 1, 73, 1),
    Sketcher.Constraint("Horizontal", 17, 1, 74, 1),
    Sketcher.Constraint("Horizontal", 16, 1, 75, 1),
    Sketcher.Constraint("Horizontal", 14, 2, 77, 2),
    Sketcher.Constraint("Horizontal", 46, 2, 78, 2),
    Sketcher.Constraint("Vertical", 12, 3, 16, 3),
    Sketcher.Constraint("Vertical", 11, 3, 17, 3),
    Sketcher.Constraint("Vertical", 16, 3, 19, 3),
    Sketcher.Constraint("Vertical", 15, 3, 20, 3),
    Sketcher.Constraint("Vertical", 19, 3, 23, 3),
    Sketcher.Constraint("Vertical", 18, 3, 24, 3),
    Sketcher.Constraint("Vertical", 23, 3, 26, 3),
    Sketcher.Constraint("Vertical", 22, 3, 27, 3),
    Sketcher.Constraint("Vertical", 26, 3, 30, 3),
    Sketcher.Constraint("Vertical", 25, 3, 31, 3),
    Sketcher.Constraint("Vertical", 30, 3, 33, 3),
    Sketcher.Constraint("Vertical", 29, 3, 34, 3),
    Sketcher.Constraint("Vertical", 33, 3, 37, 3),
    Sketcher.Constraint("Vertical", 32, 3, 38, 3),
    Sketcher.Constraint("Vertical", 37, 3, 40, 3),
    Sketcher.Constraint("Vertical", 36, 3, 41, 3),
    Sketcher.Constraint("Vertical", 40, 3, 44, 3),
    Sketcher.Constraint("Vertical", 39, 3, 45, 3),
    Sketcher.Constraint("Vertical", 11, 1, 16, 1),
    Sketcher.Constraint("Vertical", 16, 1, 18, 1),
    Sketcher.Constraint("Vertical", 18, 1, 23, 1),
    Sketcher.Constraint("Vertical", 23, 1, 25, 1),
    Sketcher.Constraint("Vertical", 25, 1, 30, 1),
    Sketcher.Constraint("Vertical", 30, 1, 32, 1),
    Sketcher.Constraint("Vertical", 32, 1, 37, 1),
    Sketcher.Constraint("Vertical", 37, 1, 39, 1),
    Sketcher.Constraint("Vertical", 39, 1, 44, 1),
    Sketcher.Constraint("Equal", 0, 1),
    Sketcher.Constraint("Equal", 14, 21),
    Sketcher.Constraint("Equal", 21, 28),
    Sketcher.Constraint("Equal", 28, 35),
    Sketcher.Constraint("Equal", 35, 42),
    Sketcher.Constraint("Radius", 46, Q("3 mm")),
    Sketcher.Constraint("Radius", 3, Q("3.500001 mm")),
    Sketcher.Constraint("DistanceX", 0, 2, 0, 1, Q("10 mm")),
    Sketcher.Constraint("DistanceX", 79, 1, 79, 2, Q("3 mm")),
    Sketcher.Constraint("Radius", 7, Q("0.15 mm")),
    Sketcher.Constraint("DistanceX", -1, 1, 3, 3, Q("10 mm")),
    Sketcher.Constraint("DistanceY", 3, 3, -1, 1, Q("13.000001 mm")),
    Sketcher.Constraint("Radius", 9, Q("0.555 mm")),
    Sketcher.Constraint("DistanceX", -1, 1, 7, 3, Q("6.24 mm")),
    Sketcher.Constraint("DistanceX", 13, 3, -1, 1, Q("0.96 mm")),
    Sketcher.Constraint("DistanceX", -1, 1, 0, 2, Q("7.03 mm")),
    Sketcher.Constraint("DistanceX", 78, 2, -1, 1, Q("4.75 mm")),
    Sketcher.Constraint("Radius", 8, Q("0.99997 mm")),
    Sketcher.Constraint("DistanceY", 6, 1, 6, 2, Q("0.51965 mm")),
    Sketcher.Constraint("DistanceX", -1, 1, 8, 1, Q("5.951798 mm")),
])
pad3 = doc.addObject("PartDesign::Pad", "Pad002")
body.addObject(pad3)
pad3.Profile = sketch5
pad3.Length = 8

# Sketch on XZ plane
sketch6 = doc.addObject("Sketcher::SketchObject", "Sketch005")
body.addObject(sketch6)
sketch6.AttachmentSupport = (doc.XZ_Plane, [""])
sketch6.MapMode = "FlatFace"
sketch6.addGeometry([
    Part.Circle(V(-10, -13, 0), V(0, 0, 1), 1.8),
    Part.Circle(V(10, -13, 0), V(0, 0, 1), 1.8),
    Part.Circle(V(10, -33, 0), V(0, 0, 1), 1.8),
    Part.Circle(V(-10, -33, 0), V(0, 0, 1), 1.8),
], False)
sketch6.addConstraint([
    Sketcher.Constraint("Equal", 0, 1),
    Sketcher.Constraint("Equal", 1, 2),
    Sketcher.Constraint("Equal", 2, 3),
    Sketcher.Constraint("Symmetric", 0, 3, 1, 3, -2),
    Sketcher.Constraint("Symmetric", 2, 3, 3, 3, -2),
    Sketcher.Constraint("Vertical", 1, 3, 2, 3),
    Sketcher.Constraint("Diameter", 0, Q("3.5 mm")),
    Sketcher.Constraint("DistanceX", 0, 3, -1, 1, Q("10 mm")),
    Sketcher.Constraint("DistanceY", 0, 3, -1, 1, Q("13 mm")),
    Sketcher.Constraint("DistanceY", 2, 3, -1, 1, Q("33 mm")),
])
pocket3 = doc.addObject("PartDesign::Pocket", "Pocket002")
body.addObject(pocket3)
pocket3.Profile = sketch6
pocket3.Length = 25

doc.recompute()
